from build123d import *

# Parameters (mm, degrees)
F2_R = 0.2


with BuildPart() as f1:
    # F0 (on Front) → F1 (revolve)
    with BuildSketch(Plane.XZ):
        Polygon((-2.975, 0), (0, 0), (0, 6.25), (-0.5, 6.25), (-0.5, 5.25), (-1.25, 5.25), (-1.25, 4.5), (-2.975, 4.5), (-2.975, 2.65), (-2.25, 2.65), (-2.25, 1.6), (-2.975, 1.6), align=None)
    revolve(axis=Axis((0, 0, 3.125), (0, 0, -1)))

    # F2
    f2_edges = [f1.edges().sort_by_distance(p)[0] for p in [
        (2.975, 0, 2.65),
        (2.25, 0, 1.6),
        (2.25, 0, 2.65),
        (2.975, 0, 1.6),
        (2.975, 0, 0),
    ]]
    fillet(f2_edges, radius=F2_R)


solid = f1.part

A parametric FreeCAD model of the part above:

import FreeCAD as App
import Part
import Sketcher
from FreeCAD import Vector


def edges_at(feature, points):
    """Names of the edges that pass closest to the given points."""
    edges = feature.Shape.Edges
    near = lambda p: min(range(len(edges)), key=lambda i: edges[i].distToShape(Part.Vertex(*p))[0])
    return sorted({f"Edge{near(p) + 1}" for p in points})

doc = App.newDocument("Part")
body = doc.addObject("PartDesign::Body", "Body")

# Sketch on XZ plane
sketch1 = body.newObject("Sketcher::SketchObject", "Sketch")
sketch1.AttachmentSupport = (doc.getObject("XZ_Plane"), [""])
sketch1.MapMode = "FlatFace"
sketch1.addGeometry([
    Part.LineSegment(Vector(-2.975, 0, 0), Vector(0, 0, 0)),  # 0
    Part.LineSegment(Vector(0, 0, 0), Vector(0, 6.25, 0)),  # 1
    Part.LineSegment(Vector(0, 6.25, 0), Vector(-0.5, 6.25, 0)),  # 2
    Part.LineSegment(Vector(-0.5, 6.25, 0), Vector(-0.5, 5.25, 0)),  # 3
    Part.LineSegment(Vector(-0.5, 5.25, 0), Vector(-1.25, 5.25, 0)),  # 4
    Part.LineSegment(Vector(-1.25, 5.25, 0), Vector(-1.25, 4.5, 0)),  # 5
    Part.LineSegment(Vector(-1.25, 4.5, 0), Vector(-2.975, 4.5, 0)),  # 6
    Part.LineSegment(Vector(-2.975, 4.5, 0), Vector(-2.975, 2.65, 0)),  # 7
    Part.LineSegment(Vector(-2.975, 2.65, 0), Vector(-2.25, 2.65, 0)),  # 8
    Part.LineSegment(Vector(-2.25, 2.65, 0), Vector(-2.25, 1.6, 0)),  # 9
    Part.LineSegment(Vector(-2.25, 1.6, 0), Vector(-2.975, 1.6, 0)),  # 10
    Part.LineSegment(Vector(-2.975, 1.6, 0), Vector(-2.975, 0, 0)),  # 11
], False)
sketch1.addConstraint([
    Sketcher.Constraint("Coincident", 0, 2, 1, 1),
    Sketcher.Constraint("Coincident", 1, 2, 2, 1),
    Sketcher.Constraint("Coincident", 2, 2, 3, 1),
    Sketcher.Constraint("Coincident", 3, 2, 4, 1),
    Sketcher.Constraint("Coincident", 4, 2, 5, 1),
    Sketcher.Constraint("Coincident", 5, 2, 6, 1),
    Sketcher.Constraint("Coincident", 6, 2, 7, 1),
    Sketcher.Constraint("Coincident", 7, 2, 8, 1),
    Sketcher.Constraint("Coincident", 8, 2, 9, 1),
    Sketcher.Constraint("Coincident", 9, 2, 10, 1),
    Sketcher.Constraint("Coincident", 10, 2, 11, 1),
    Sketcher.Constraint("Coincident", 11, 2, 0, 1),
    Sketcher.Constraint("Horizontal", 0),
    Sketcher.Constraint("Vertical", 1),
    Sketcher.Constraint("Horizontal", 2),
    Sketcher.Constraint("Vertical", 3),
    Sketcher.Constraint("Horizontal", 4),
    Sketcher.Constraint("Vertical", 5),
    Sketcher.Constraint("Horizontal", 6),
    Sketcher.Constraint("Vertical", 7),
    Sketcher.Constraint("Horizontal", 8),
    Sketcher.Constraint("Vertical", 9),
    Sketcher.Constraint("Horizontal", 10),
    Sketcher.Constraint("Vertical", 11),
    Sketcher.Constraint("Coincident", 0, 2, -1, 1),
    Sketcher.Constraint("Vertical", 7, 2, 10, 2),
    Sketcher.Constraint("Equal", 4, 5),
    Sketcher.Constraint("DistanceY", 3, 2, 3, 1, 1.0),
    Sketcher.Constraint("DistanceX", 2, 2, 2, 1, 0.5),
    Sketcher.Constraint("DistanceY", 11, 2, 11, 1, 1.6),
    Sketcher.Constraint("DistanceX", 8, 2, 5, 2, 1.0),
    Sketcher.Constraint("DistanceX", 4, 2, 4, 1, 0.75),
    Sketcher.Constraint("DistanceY", 1, 1, 1, 2, 6.25),
    Sketcher.Constraint("DistanceY", 7, 2, 7, 1, 1.85),
    Sketcher.Constraint("DistanceX", 0, 1, 0, 2, 2.975),
])
revolution = body.newObject("PartDesign::Revolution", "Revolution")
revolution.Profile = sketch1
revolution.ReferenceAxis = (sketch1, ["V_Axis"])
revolution.Angle = 360
doc.recompute()

fillet = body.newObject("PartDesign::Fillet", "Fillet")
fillet.Base = (revolution, edges_at(revolution, [
    (2.975, 0, 2.65),
    (2.25, 0, 1.6),
    (2.25, 0, 2.65),
    (2.975, 0, 1.6),
    (2.975, 0, 0),
]))
fillet.Radius = 0.2

doc.recompute()
